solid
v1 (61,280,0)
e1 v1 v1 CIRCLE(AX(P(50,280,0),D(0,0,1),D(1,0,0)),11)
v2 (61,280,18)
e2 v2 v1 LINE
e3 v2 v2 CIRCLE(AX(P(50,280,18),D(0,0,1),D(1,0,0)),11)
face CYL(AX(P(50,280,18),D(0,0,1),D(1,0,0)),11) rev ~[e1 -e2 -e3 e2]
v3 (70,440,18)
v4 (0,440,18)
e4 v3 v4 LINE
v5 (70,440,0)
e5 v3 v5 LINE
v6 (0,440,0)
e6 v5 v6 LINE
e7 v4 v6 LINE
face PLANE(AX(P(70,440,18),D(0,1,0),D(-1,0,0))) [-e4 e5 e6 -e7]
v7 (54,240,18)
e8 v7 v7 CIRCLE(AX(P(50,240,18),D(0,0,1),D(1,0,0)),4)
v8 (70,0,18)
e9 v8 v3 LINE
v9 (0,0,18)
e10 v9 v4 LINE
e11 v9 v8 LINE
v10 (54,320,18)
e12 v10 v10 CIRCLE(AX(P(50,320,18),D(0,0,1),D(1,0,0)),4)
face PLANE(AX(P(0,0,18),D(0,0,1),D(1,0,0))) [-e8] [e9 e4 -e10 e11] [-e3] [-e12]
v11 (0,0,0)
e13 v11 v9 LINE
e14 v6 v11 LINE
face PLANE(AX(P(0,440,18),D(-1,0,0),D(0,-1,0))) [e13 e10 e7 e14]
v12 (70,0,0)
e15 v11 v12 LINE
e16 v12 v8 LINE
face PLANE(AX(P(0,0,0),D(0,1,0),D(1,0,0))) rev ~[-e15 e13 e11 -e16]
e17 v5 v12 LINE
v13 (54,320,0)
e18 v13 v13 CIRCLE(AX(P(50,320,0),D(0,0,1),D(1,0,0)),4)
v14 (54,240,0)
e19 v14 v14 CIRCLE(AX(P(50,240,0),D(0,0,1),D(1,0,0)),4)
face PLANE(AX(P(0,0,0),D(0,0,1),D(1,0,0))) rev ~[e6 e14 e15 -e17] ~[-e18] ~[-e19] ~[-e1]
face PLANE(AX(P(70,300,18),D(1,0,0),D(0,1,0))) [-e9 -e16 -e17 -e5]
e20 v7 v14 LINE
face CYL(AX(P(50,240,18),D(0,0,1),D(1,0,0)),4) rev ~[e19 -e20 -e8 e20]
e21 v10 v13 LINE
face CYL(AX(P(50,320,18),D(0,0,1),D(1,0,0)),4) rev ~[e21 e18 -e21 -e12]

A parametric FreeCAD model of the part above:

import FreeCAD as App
import Part
import Sketcher

V = App.Vector
Q = App.Units.Quantity

doc = App.newDocument("Part")
params = doc.addObject("Spreadsheet::Sheet", "Params")
for row, (alias, value) in enumerate([
    ("sketch1_width", "70 mm"),
    ("sketch1_height", "300 mm"),
    ("pad1_length", "18 mm"),
    ("sketch2_diameter", "22 mm"),
    ("sketch2_diameter2", "3 mm"),
    ("pocket1_length", "18 mm"),
    ("sketch3_width", "70 mm"),
    ("sketch3_height", "140 mm"),
    ("pad2_length", "18 mm"),
    ("sketch4_diameter", "3 mm"),
    ("pocket2_length", "18 mm"),
    ("sketch5_diameter", "8 mm"),
    ("pocket3_length", "18 mm"),
    ("sketch6_diameter", "3 mm"),
    ("pad3_length", "18 mm"),
], start=1):
    params.set(f"A{row}", alias)
    params.set(f"B{row}", "=" + value)
    params.setAlias(f"B{row}", alias)

body = doc.addObject("PartDesign::Body", "Body")

# Sketch on XY plane
sketch1 = doc.addObject("Sketcher::SketchObject", "Sketch")
body.addObject(sketch1)
sketch1.AttachmentSupport = (doc.XY_Plane, [""])
sketch1.MapMode = "FlatFace"
sketch1.addGeometry(Part.LineSegment(V(0, 300, 0), V(0, 0, 0)), False)
sketch1.addGeometry(Part.LineSegment(V(0, 0, 0), V(70, 0, 0)), False)
sketch1.addGeometry(Part.LineSegment(V(70, 0, 0), V(70, 300, 0)), False)
sketch1.addGeometry(Part.LineSegment(V(70, 300, 0), V(0, 300, 0)), False)
sketch1.addConstraint(Sketcher.Constraint("Coincident", 0, 2, 1, 1))
sketch1.addConstraint(Sketcher.Constraint("Coincident", 1, 2, 2, 1))
sketch1.addConstraint(Sketcher.Constraint("Coincident", 2, 2, 3, 1))
sketch1.addConstraint(Sketcher.Constraint("Coincident", 3, 2, 0, 1))
sketch1.addConstraint(Sketcher.Constraint("Vertical", 0))
sketch1.addConstraint(Sketcher.Constraint("Horizontal", 1))
sketch1.addConstraint(Sketcher.Constraint("Vertical", 2))
sketch1.addConstraint(Sketcher.Constraint("Horizontal", 3))
sketch1.addConstraint(Sketcher.Constraint("Coincident", 0, 2, -1, 1))
sketch1.addConstraint(Sketcher.Constraint("DistanceX", 1, 1, 1, 2, Q("70 mm")))
sketch1.addConstraint(Sketcher.Constraint("DistanceY", 0, 2, 0, 1, Q("300 mm")))
sketch1.setExpression("Constraints[9]", "Params.sketch1_width")
sketch1.setExpression("Constraints[10]", "Params.sketch1_height")
pad1 = doc.addObject("PartDesign::Pad", "Pad")
body.addObject(pad1)
pad1.Profile = sketch1
pad1.setExpression("Length", "Params.pad1_length")

# Sketch on XY plane
sketch2 = doc.addObject("Sketcher::SketchObject", "Sketch001")
body.addObject(sketch2)
sketch2.AttachmentSupport = (doc.XY_Plane, [""])
sketch2.MapMode = "FlatFace"
sketch2.AttachmentOffset = App.Placement(V(0, 0, 18), App.Rotation())
sketch2.addGeometry(Part.Circle(V(50, 280, 0), V(0, 0, 1), 11), False)
sketch2.addGeometry(Part.Circle(V(50, 258, 0), V(0, 0, 1), 1.5), False)
sketch2.addGeometry(Part.Circle(V(28, 280, 0), V(0, 0, 1), 1.5), False)
sketch2.addConstraint(Sketcher.Constraint("Equal", 1, 2))
sketch2.addConstraint(Sketcher.Constraint("Horizontal", 0, 3, 2, 3))
sketch2.addConstraint(Sketcher.Constraint("Vertical", 0, 3, 1, 3))
sketch2.addConstraint(Sketcher.Constraint("Diameter", 0, Q("22 mm")))
sketch2.addConstraint(Sketcher.Constraint("Diameter", 1, Q("3 mm")))
sketch2.addConstraint(Sketcher.Constraint("DistanceY", 1, 3, 0, 3, Q("22 mm")))
sketch2.addConstraint(Sketcher.Constraint("DistanceX", 2, 3, 0, 3, Q("22 mm")))
sketch2.addConstraint(Sketcher.Constraint("DistanceX", -1, 1, 0, 3, Q("50 mm")))
sketch2.addConstraint(Sketcher.Constraint("DistanceY", -1, 1, 0, 3, Q("280 mm")))
sketch2.setExpression("Constraints[3]", "Params.sketch2_diameter")
sketch2.setExpression("Constraints[4]", "Params.sketch2_diameter2")
pocket1 = doc.addObject("PartDesign::Pocket", "Pocket")
body.addObject(pocket1)
pocket1.Profile = sketch2
pocket1.setExpression("Length", "Params.pocket1_length")

# Sketch on XY plane
sketch3 = doc.addObject("Sketcher::SketchObject", "Sketch002")
body.addObject(sketch3)
sketch3.AttachmentSupport = (doc.XY_Plane, [""])
sketch3.MapMode = "FlatFace"
sketch3.AttachmentOffset = App.Placement(V(0, 0, 18), App.Rotation())
sketch3.addGeometry(Part.LineSegment(V(0, 300, 0), V(70, 300, 0)), False)
sketch3.addGeometry(Part.LineSegment(V(70, 300, 0), V(70, 440, 0)), False)
sketch3.addGeometry(Part.LineSegment(V(70, 440, 0), V(0, 440, 0)), False)
sketch3.addGeometry(Part.LineSegment(V(0, 440, 0), V(0, 300, 0)), False)
sketch3.addConstraint(Sketcher.Constraint("Coincident", 0, 2, 1, 1))
sketch3.addConstraint(Sketcher.Constraint("Coincident", 1, 2, 2, 1))
sketch3.addConstraint(Sketcher.Constraint("Coincident", 2, 2, 3, 1))
sketch3.addConstraint(Sketcher.Constraint("Coincident", 3, 2, 0, 1))
sketch3.addConstraint(Sketcher.Constraint("Horizontal", 0))
sketch3.addConstraint(Sketcher.Constraint("Vertical", 1))
sketch3.addConstraint(Sketcher.Constraint("Horizontal", 2))
sketch3.addConstraint(Sketcher.Constraint("Vertical", 3))
sketch3.addConstraint(Sketcher.Constraint("PointOnObject", 2, 2, -2))
sketch3.addConstraint(Sketcher.Constraint("DistanceX", 0, 1, 0, 2, Q("70 mm")))
sketch3.addConstraint(Sketcher.Constraint("DistanceY", 1, 1, 1, 2, Q("140 mm")))
sketch3.addConstraint(Sketcher.Constraint("DistanceY", -1, 1, 0, 2, Q("300 mm")))
sketch3.setExpression("Constraints[9]", "Params.sketch3_width")
sketch3.setExpression("Constraints[10]", "Params.sketch3_height")
pad2 = doc.addObject("PartDesign::Pad", "Pad001")
body.addObject(pad2)
pad2.Profile = sketch3
pad2.setExpression("Length", "Params.pad2_length")
pad2.Reversed = True

# Sketch on XY plane
sketch4 = doc.addObject("Sketcher::SketchObject", "Sketch003")
body.addObject(sketch4)
sketch4.AttachmentSupport = (doc.XY_Plane, [""])
sketch4.MapMode = "FlatFace"
sketch4.AttachmentOffset = App.Placement(V(0, 0, 18), App.Rotation())
sketch4.addGeometry(Part.Circle(V(50, 302, 0), V(0, 0, 1), 1.5), False)
sketch4.addConstraint(Sketcher.Constraint("Diameter", 0, Q("3 mm")))
sketch4.addConstraint(Sketcher.Constraint("DistanceX", -1, 1, 0, 3, Q("50 mm")))
sketch4.addConstraint(Sketcher.Constraint("DistanceY", -1, 1, 0, 3, Q("302 mm")))
sketch4.setExpression("Constraints[0]", "Params.sketch4_diameter")
pocket2 = doc.addObject("PartDesign::Pocket", "Pocket001")
body.addObject(pocket2)
pocket2.Profile = sketch4
pocket2.setExpression("Length", "Params.pocket2_length")

# Sketch on XY plane
sketch5 = doc.addObject("Sketcher::SketchObject", "Sketch004")
body.addObject(sketch5)
sketch5.AttachmentSupport = (doc.XY_Plane, [""])
sketch5.MapMode = "FlatFace"
sketch5.AttachmentOffset = App.Placement(V(0, 0, 18), App.Rotation())
sketch5.addGeometry(Part.Circle(V(50, 240, 0), V(0, 0, 1), 4), False)
sketch5.addGeometry(Part.Circle(V(50, 320, 0), V(0, 0, 1), 4), False)
sketch5.addConstraint(Sketcher.Constraint("Equal", 0, 1))
sketch5.addConstraint(Sketcher.Constraint("Vertical", 0, 3, 1, 3))
sketch5.addConstraint(Sketcher.Constraint("Diameter", 0, Q("8 mm")))
sketch5.addConstraint(Sketcher.Constraint("DistanceX", -1, 1, 0, 3, Q("50 mm")))
sketch5.addConstraint(Sketcher.Constraint("DistanceY", -1, 1, 0, 3, Q("240 mm")))
sketch5.addConstraint(Sketcher.Constraint("DistanceY", -1, 1, 1, 3, Q("320 mm")))
sketch5.setExpression("Constraints[2]", "Params.sketch5_diameter")
pocket3 = doc.addObject("PartDesign::Pocket", "Pocket002")
body.addObject(pocket3)
pocket3.Profile = sketch5
pocket3.setExpression("Length", "Params.pocket3_length")

# Sketch on XY plane
sketch6 = doc.addObject("Sketcher::SketchObject", "Sketch005")
body.addObject(sketch6)
sketch6.AttachmentSupport = (doc.XY_Plane, [""])
sketch6.MapMode = "FlatFace"
sketch6.AttachmentOffset = App.Placement(V(0, 0, 18), App.Rotation())
sketch6.addGeometry(Part.Circle(V(50, 302, 0), V(0, 0, 1), 1.5), False)
sketch6.addGeometry(Part.Circle(V(28, 280, 0), V(0, 0, 1), 1.5), False)
sketch6.addGeometry(Part.Circle(V(50, 258, 0), V(0, 0, 1), 1.5), False)
sketch6.addConstraint(Sketcher.Constraint("Equal", 0, 1))
sketch6.addConstraint(Sketcher.Constraint("Equal", 1, 2))
sketch6.addConstraint(Sketcher.Constraint("Vertical", 0, 3, 2, 3))
sketch6.addConstraint(Sketcher.Constraint("Diameter", 0, Q("3 mm")))
sketch6.addConstraint(Sketcher.Constraint("DistanceX", -1, 1, 0, 3, Q("50 mm")))
sketch6.addConstraint(Sketcher.Constraint("DistanceY", -1, 1, 0, 3, Q("302 mm")))
sketch6.addConstraint(Sketcher.Constraint("DistanceX", -1, 1, 1, 3, Q("28 mm")))
sketch6.addConstraint(Sketcher.Constraint("DistanceY", -1, 1, 1, 3, Q("280 mm")))
sketch6.addConstraint(Sketcher.Constraint("DistanceY", -1, 1, 2, 3, Q("258 mm")))
sketch6.setExpression("Constraints[3]", "Params.sketch6_diameter")
pad3 = doc.addObject("PartDesign::Pad", "Pad002")
body.addObject(pad3)
pad3.Profile = sketch6
pad3.setExpression("Length", "Params.pad3_length")
pad3.Reversed = True

doc.recompute()
